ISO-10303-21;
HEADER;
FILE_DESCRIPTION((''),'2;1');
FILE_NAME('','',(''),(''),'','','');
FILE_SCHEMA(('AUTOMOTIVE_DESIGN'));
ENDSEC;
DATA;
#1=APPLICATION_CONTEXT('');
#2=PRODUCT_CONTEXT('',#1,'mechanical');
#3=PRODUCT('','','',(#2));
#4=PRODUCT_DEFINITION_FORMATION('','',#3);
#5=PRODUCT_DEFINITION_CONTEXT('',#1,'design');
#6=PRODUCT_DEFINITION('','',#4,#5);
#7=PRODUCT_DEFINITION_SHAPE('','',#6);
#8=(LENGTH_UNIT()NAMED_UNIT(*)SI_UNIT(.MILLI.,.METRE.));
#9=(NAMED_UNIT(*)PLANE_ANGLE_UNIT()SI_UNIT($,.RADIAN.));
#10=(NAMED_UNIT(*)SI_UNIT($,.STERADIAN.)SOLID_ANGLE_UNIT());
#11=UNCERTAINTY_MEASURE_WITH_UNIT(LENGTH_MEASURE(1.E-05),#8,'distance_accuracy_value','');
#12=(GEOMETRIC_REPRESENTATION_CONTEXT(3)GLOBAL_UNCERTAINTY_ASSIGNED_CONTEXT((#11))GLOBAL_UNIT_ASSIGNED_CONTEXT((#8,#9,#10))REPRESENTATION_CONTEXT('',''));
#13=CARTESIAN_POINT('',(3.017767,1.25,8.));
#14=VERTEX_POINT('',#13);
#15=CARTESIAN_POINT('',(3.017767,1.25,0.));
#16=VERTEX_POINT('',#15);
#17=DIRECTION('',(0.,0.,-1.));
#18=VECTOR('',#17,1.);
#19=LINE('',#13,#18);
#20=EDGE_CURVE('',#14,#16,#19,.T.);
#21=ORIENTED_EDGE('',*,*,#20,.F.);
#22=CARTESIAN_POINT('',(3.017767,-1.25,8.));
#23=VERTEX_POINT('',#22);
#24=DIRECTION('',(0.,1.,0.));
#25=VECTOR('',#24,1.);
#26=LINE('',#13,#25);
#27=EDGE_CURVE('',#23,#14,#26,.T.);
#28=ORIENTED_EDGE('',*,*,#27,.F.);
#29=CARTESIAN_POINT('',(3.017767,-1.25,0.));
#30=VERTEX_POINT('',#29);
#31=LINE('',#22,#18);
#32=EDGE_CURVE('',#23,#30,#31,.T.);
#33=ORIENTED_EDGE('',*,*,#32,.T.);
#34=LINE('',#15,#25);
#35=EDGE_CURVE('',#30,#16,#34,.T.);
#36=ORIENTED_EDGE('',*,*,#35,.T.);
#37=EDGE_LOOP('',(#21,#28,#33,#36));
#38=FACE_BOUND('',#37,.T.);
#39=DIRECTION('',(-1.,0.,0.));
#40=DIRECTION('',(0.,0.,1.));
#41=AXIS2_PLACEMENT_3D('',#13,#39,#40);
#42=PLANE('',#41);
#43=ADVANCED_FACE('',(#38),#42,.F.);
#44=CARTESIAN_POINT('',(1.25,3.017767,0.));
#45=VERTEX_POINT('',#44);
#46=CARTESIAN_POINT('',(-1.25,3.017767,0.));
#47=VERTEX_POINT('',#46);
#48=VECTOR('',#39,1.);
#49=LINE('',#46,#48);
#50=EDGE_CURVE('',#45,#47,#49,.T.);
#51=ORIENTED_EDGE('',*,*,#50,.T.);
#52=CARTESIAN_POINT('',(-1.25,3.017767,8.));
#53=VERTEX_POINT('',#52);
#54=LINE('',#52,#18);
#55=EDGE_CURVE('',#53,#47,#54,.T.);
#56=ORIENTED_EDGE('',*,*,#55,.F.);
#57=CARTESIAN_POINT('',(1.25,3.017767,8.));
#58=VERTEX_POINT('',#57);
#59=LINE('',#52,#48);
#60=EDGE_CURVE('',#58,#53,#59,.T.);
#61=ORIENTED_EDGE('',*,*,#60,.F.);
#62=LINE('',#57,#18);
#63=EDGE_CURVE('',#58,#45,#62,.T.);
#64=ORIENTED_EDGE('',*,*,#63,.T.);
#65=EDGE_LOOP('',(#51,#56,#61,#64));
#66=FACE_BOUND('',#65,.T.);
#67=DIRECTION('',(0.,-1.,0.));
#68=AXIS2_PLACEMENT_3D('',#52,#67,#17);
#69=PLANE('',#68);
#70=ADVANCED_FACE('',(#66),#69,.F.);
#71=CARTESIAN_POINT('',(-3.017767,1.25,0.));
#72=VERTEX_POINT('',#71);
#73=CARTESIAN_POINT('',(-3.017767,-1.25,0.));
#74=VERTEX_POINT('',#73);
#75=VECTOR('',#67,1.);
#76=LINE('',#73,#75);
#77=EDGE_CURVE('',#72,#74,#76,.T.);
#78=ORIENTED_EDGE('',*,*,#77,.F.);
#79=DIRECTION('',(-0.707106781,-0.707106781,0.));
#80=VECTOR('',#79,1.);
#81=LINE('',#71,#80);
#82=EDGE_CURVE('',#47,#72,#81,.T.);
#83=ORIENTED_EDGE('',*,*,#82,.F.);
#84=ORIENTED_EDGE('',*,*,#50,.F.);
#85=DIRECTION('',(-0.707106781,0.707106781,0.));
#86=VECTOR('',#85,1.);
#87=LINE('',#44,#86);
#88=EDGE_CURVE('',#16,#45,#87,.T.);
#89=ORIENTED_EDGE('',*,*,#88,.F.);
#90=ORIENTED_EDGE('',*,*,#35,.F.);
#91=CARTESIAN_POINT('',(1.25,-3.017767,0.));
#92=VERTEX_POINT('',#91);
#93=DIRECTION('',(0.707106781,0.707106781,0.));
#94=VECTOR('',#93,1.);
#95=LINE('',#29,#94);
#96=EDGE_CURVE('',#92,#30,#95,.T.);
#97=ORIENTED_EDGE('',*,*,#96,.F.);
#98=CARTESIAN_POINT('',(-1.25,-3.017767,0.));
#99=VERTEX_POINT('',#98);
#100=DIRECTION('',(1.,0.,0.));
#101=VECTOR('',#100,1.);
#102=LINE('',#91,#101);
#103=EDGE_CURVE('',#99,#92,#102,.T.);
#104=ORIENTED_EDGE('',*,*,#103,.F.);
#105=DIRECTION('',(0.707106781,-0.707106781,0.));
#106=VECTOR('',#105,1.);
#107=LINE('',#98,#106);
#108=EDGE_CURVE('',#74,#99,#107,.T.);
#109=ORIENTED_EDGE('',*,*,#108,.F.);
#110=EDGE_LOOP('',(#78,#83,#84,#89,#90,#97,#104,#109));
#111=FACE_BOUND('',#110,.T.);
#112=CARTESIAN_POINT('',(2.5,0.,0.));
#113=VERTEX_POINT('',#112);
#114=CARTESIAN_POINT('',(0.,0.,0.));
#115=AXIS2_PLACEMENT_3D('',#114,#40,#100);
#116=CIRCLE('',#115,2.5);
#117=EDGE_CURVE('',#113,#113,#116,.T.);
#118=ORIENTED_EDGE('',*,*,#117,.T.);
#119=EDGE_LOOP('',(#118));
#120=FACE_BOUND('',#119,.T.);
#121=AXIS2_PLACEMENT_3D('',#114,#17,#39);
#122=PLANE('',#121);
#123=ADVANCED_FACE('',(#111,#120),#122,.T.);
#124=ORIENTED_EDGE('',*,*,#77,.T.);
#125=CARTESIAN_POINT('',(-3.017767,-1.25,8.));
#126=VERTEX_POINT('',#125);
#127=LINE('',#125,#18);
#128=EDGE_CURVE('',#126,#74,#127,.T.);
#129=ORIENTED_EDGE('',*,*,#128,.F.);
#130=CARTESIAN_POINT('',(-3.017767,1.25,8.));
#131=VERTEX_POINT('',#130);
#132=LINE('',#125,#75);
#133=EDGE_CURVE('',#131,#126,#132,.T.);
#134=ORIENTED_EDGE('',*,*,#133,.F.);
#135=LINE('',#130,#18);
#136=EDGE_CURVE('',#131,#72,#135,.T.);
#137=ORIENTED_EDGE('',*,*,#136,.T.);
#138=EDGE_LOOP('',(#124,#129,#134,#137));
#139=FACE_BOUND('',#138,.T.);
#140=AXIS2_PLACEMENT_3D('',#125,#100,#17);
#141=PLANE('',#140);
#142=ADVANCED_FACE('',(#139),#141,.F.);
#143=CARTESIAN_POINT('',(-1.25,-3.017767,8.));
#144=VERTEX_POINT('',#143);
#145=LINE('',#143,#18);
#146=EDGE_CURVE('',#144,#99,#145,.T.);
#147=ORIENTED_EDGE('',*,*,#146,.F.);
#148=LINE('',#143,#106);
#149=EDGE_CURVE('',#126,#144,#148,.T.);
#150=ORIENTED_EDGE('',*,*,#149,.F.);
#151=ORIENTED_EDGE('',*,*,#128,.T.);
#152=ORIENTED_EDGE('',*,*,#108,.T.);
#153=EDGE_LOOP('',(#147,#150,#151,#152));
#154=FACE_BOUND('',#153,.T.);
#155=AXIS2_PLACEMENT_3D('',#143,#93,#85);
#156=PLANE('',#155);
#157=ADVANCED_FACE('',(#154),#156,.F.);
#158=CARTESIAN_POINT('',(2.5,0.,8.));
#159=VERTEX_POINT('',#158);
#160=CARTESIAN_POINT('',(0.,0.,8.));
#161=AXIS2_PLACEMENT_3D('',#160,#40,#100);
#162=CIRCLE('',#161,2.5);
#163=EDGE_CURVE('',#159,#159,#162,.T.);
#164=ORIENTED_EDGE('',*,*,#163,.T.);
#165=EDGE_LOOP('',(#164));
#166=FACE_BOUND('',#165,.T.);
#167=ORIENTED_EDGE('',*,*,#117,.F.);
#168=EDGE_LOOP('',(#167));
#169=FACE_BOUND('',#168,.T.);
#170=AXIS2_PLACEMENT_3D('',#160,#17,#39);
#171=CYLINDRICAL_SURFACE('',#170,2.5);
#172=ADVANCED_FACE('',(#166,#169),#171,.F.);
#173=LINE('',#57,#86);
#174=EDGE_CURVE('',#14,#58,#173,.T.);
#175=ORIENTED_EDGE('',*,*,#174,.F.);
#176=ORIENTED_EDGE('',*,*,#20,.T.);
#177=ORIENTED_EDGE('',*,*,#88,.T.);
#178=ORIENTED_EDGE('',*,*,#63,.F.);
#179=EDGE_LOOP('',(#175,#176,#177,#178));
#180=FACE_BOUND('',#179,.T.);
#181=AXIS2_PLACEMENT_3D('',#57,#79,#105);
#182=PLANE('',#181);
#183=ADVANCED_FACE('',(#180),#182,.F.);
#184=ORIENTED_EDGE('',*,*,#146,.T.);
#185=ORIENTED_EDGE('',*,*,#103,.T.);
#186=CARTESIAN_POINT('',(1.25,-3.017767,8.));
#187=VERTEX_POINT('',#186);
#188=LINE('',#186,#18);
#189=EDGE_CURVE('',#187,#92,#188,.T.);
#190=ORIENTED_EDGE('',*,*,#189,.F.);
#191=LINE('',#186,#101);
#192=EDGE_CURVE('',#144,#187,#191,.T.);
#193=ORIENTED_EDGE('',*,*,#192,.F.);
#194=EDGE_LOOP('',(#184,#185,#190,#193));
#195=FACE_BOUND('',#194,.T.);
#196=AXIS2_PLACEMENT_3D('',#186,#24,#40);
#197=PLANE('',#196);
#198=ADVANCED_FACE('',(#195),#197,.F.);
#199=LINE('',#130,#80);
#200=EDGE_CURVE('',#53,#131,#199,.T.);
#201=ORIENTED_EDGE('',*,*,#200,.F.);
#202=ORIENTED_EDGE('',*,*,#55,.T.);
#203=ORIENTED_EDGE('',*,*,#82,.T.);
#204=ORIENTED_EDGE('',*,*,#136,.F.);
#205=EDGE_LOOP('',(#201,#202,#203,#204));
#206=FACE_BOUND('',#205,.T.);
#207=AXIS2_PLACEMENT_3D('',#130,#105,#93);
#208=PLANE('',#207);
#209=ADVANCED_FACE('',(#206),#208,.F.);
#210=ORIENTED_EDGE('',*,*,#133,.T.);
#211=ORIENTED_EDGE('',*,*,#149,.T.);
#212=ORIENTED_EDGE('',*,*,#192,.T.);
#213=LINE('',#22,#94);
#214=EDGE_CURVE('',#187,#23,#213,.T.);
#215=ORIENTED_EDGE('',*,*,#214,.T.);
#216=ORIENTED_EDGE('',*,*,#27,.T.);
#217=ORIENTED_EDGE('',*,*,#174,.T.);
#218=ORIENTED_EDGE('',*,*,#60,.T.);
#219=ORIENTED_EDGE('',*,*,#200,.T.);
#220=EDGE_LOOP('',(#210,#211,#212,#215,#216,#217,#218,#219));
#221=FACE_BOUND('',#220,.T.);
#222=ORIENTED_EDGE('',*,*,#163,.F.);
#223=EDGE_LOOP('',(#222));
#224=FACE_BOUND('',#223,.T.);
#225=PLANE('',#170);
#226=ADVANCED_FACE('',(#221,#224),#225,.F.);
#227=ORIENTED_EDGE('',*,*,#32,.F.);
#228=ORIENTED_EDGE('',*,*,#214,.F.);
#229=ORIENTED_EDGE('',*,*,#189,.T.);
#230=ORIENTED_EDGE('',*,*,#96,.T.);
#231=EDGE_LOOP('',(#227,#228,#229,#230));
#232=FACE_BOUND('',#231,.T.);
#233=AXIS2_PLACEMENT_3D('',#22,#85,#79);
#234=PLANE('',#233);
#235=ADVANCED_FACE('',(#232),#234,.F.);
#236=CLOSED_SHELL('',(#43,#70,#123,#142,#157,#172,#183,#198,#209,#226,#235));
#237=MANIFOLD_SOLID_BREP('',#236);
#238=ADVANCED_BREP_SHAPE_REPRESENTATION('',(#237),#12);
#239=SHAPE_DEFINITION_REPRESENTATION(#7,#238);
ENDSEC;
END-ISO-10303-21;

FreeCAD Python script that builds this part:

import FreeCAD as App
import Part
import Sketcher

doc = App.newDocument("Part")
body = doc.addObject("PartDesign::Body", "Body")

# Sketch on XY plane
sketch1 = body.newObject("Sketcher::SketchObject", "Sketch")
sketch1.AttachmentSupport = (doc.getObject("XY_Plane"), [""])
sketch1.MapMode = "FlatFace"
sketch1.addGeometry([
    Part.LineSegment(App.Vector(1.25, 3.017767, 0), App.Vector(-1.25, 3.017767, 0)),  # 0
    Part.LineSegment(App.Vector(-1.25, 3.017767, 0), App.Vector(-3.017767, 1.25, 0)),  # 1
    Part.LineSegment(App.Vector(-3.017767, 1.25, 0), App.Vector(-3.017767, -1.25, 0)),  # 2
    Part.LineSegment(App.Vector(-3.017767, -1.25, 0), App.Vector(-1.25, -3.017767, 0)),  # 3
    Part.LineSegment(App.Vector(-1.25, -3.017767, 0), App.Vector(1.25, -3.017767, 0)),  # 4
    Part.LineSegment(App.Vector(1.25, -3.017767, 0), App.Vector(3.017767, -1.25, 0)),  # 5
    Part.LineSegment(App.Vector(3.017767, -1.25, 0), App.Vector(3.017767, 1.25, 0)),  # 6
    Part.LineSegment(App.Vector(3.017767, 1.25, 0), App.Vector(1.25, 3.017767, 0)),  # 7
    Part.Circle(App.Vector(0, 0, 0), App.Vector(0, 0, 1), 2.5),  # 8
], False)
sketch1.addConstraint([
    Sketcher.Constraint("Coincident", 0, 2, 1, 1),
    Sketcher.Constraint("Coincident", 1, 2, 2, 1),
    Sketcher.Constraint("Coincident", 2, 2, 3, 1),
    Sketcher.Constraint("Coincident", 3, 2, 4, 1),
    Sketcher.Constraint("Coincident", 4, 2, 5, 1),
    Sketcher.Constraint("Coincident", 5, 2, 6, 1),
    Sketcher.Constraint("Coincident", 6, 2, 7, 1),
    Sketcher.Constraint("Coincident", 7, 2, 0, 1),
    Sketcher.Constraint("Horizontal", 0),
    Sketcher.Constraint("Vertical", 2),
    Sketcher.Constraint("Horizontal", 4),
    Sketcher.Constraint("Vertical", 6),
    Sketcher.Constraint("Coincident", 8, 3, -1, 1),
    Sketcher.Constraint("Symmetric", 0, 2, 4, 2, -1, 1),
    Sketcher.Constraint("Symmetric", 1, 2, 5, 2, -1, 1),
    Sketcher.Constraint("Perpendicular", 1, 3),
    Sketcher.Constraint("Perpendicular", 5, 7),
    Sketcher.Constraint("Horizontal", 2, 2, 5, 2),
    Sketcher.Constraint("Horizontal", 1, 2, 6, 2),
    Sketcher.Constraint("Vertical", 0, 2, 3, 2),
    Sketcher.Constraint("Equal", 4, 2),
    Sketcher.Constraint("Diameter", 8, 5.0),
    Sketcher.Constraint("DistanceX", 0, 2, 0, 1, 2.5),
    Sketcher.Constraint("Distance", 1, 2.5),
])
pad1 = body.newObject("PartDesign::Pad", "Pad")
pad1.Profile = sketch1
pad1.Length = 8

doc.recompute()
